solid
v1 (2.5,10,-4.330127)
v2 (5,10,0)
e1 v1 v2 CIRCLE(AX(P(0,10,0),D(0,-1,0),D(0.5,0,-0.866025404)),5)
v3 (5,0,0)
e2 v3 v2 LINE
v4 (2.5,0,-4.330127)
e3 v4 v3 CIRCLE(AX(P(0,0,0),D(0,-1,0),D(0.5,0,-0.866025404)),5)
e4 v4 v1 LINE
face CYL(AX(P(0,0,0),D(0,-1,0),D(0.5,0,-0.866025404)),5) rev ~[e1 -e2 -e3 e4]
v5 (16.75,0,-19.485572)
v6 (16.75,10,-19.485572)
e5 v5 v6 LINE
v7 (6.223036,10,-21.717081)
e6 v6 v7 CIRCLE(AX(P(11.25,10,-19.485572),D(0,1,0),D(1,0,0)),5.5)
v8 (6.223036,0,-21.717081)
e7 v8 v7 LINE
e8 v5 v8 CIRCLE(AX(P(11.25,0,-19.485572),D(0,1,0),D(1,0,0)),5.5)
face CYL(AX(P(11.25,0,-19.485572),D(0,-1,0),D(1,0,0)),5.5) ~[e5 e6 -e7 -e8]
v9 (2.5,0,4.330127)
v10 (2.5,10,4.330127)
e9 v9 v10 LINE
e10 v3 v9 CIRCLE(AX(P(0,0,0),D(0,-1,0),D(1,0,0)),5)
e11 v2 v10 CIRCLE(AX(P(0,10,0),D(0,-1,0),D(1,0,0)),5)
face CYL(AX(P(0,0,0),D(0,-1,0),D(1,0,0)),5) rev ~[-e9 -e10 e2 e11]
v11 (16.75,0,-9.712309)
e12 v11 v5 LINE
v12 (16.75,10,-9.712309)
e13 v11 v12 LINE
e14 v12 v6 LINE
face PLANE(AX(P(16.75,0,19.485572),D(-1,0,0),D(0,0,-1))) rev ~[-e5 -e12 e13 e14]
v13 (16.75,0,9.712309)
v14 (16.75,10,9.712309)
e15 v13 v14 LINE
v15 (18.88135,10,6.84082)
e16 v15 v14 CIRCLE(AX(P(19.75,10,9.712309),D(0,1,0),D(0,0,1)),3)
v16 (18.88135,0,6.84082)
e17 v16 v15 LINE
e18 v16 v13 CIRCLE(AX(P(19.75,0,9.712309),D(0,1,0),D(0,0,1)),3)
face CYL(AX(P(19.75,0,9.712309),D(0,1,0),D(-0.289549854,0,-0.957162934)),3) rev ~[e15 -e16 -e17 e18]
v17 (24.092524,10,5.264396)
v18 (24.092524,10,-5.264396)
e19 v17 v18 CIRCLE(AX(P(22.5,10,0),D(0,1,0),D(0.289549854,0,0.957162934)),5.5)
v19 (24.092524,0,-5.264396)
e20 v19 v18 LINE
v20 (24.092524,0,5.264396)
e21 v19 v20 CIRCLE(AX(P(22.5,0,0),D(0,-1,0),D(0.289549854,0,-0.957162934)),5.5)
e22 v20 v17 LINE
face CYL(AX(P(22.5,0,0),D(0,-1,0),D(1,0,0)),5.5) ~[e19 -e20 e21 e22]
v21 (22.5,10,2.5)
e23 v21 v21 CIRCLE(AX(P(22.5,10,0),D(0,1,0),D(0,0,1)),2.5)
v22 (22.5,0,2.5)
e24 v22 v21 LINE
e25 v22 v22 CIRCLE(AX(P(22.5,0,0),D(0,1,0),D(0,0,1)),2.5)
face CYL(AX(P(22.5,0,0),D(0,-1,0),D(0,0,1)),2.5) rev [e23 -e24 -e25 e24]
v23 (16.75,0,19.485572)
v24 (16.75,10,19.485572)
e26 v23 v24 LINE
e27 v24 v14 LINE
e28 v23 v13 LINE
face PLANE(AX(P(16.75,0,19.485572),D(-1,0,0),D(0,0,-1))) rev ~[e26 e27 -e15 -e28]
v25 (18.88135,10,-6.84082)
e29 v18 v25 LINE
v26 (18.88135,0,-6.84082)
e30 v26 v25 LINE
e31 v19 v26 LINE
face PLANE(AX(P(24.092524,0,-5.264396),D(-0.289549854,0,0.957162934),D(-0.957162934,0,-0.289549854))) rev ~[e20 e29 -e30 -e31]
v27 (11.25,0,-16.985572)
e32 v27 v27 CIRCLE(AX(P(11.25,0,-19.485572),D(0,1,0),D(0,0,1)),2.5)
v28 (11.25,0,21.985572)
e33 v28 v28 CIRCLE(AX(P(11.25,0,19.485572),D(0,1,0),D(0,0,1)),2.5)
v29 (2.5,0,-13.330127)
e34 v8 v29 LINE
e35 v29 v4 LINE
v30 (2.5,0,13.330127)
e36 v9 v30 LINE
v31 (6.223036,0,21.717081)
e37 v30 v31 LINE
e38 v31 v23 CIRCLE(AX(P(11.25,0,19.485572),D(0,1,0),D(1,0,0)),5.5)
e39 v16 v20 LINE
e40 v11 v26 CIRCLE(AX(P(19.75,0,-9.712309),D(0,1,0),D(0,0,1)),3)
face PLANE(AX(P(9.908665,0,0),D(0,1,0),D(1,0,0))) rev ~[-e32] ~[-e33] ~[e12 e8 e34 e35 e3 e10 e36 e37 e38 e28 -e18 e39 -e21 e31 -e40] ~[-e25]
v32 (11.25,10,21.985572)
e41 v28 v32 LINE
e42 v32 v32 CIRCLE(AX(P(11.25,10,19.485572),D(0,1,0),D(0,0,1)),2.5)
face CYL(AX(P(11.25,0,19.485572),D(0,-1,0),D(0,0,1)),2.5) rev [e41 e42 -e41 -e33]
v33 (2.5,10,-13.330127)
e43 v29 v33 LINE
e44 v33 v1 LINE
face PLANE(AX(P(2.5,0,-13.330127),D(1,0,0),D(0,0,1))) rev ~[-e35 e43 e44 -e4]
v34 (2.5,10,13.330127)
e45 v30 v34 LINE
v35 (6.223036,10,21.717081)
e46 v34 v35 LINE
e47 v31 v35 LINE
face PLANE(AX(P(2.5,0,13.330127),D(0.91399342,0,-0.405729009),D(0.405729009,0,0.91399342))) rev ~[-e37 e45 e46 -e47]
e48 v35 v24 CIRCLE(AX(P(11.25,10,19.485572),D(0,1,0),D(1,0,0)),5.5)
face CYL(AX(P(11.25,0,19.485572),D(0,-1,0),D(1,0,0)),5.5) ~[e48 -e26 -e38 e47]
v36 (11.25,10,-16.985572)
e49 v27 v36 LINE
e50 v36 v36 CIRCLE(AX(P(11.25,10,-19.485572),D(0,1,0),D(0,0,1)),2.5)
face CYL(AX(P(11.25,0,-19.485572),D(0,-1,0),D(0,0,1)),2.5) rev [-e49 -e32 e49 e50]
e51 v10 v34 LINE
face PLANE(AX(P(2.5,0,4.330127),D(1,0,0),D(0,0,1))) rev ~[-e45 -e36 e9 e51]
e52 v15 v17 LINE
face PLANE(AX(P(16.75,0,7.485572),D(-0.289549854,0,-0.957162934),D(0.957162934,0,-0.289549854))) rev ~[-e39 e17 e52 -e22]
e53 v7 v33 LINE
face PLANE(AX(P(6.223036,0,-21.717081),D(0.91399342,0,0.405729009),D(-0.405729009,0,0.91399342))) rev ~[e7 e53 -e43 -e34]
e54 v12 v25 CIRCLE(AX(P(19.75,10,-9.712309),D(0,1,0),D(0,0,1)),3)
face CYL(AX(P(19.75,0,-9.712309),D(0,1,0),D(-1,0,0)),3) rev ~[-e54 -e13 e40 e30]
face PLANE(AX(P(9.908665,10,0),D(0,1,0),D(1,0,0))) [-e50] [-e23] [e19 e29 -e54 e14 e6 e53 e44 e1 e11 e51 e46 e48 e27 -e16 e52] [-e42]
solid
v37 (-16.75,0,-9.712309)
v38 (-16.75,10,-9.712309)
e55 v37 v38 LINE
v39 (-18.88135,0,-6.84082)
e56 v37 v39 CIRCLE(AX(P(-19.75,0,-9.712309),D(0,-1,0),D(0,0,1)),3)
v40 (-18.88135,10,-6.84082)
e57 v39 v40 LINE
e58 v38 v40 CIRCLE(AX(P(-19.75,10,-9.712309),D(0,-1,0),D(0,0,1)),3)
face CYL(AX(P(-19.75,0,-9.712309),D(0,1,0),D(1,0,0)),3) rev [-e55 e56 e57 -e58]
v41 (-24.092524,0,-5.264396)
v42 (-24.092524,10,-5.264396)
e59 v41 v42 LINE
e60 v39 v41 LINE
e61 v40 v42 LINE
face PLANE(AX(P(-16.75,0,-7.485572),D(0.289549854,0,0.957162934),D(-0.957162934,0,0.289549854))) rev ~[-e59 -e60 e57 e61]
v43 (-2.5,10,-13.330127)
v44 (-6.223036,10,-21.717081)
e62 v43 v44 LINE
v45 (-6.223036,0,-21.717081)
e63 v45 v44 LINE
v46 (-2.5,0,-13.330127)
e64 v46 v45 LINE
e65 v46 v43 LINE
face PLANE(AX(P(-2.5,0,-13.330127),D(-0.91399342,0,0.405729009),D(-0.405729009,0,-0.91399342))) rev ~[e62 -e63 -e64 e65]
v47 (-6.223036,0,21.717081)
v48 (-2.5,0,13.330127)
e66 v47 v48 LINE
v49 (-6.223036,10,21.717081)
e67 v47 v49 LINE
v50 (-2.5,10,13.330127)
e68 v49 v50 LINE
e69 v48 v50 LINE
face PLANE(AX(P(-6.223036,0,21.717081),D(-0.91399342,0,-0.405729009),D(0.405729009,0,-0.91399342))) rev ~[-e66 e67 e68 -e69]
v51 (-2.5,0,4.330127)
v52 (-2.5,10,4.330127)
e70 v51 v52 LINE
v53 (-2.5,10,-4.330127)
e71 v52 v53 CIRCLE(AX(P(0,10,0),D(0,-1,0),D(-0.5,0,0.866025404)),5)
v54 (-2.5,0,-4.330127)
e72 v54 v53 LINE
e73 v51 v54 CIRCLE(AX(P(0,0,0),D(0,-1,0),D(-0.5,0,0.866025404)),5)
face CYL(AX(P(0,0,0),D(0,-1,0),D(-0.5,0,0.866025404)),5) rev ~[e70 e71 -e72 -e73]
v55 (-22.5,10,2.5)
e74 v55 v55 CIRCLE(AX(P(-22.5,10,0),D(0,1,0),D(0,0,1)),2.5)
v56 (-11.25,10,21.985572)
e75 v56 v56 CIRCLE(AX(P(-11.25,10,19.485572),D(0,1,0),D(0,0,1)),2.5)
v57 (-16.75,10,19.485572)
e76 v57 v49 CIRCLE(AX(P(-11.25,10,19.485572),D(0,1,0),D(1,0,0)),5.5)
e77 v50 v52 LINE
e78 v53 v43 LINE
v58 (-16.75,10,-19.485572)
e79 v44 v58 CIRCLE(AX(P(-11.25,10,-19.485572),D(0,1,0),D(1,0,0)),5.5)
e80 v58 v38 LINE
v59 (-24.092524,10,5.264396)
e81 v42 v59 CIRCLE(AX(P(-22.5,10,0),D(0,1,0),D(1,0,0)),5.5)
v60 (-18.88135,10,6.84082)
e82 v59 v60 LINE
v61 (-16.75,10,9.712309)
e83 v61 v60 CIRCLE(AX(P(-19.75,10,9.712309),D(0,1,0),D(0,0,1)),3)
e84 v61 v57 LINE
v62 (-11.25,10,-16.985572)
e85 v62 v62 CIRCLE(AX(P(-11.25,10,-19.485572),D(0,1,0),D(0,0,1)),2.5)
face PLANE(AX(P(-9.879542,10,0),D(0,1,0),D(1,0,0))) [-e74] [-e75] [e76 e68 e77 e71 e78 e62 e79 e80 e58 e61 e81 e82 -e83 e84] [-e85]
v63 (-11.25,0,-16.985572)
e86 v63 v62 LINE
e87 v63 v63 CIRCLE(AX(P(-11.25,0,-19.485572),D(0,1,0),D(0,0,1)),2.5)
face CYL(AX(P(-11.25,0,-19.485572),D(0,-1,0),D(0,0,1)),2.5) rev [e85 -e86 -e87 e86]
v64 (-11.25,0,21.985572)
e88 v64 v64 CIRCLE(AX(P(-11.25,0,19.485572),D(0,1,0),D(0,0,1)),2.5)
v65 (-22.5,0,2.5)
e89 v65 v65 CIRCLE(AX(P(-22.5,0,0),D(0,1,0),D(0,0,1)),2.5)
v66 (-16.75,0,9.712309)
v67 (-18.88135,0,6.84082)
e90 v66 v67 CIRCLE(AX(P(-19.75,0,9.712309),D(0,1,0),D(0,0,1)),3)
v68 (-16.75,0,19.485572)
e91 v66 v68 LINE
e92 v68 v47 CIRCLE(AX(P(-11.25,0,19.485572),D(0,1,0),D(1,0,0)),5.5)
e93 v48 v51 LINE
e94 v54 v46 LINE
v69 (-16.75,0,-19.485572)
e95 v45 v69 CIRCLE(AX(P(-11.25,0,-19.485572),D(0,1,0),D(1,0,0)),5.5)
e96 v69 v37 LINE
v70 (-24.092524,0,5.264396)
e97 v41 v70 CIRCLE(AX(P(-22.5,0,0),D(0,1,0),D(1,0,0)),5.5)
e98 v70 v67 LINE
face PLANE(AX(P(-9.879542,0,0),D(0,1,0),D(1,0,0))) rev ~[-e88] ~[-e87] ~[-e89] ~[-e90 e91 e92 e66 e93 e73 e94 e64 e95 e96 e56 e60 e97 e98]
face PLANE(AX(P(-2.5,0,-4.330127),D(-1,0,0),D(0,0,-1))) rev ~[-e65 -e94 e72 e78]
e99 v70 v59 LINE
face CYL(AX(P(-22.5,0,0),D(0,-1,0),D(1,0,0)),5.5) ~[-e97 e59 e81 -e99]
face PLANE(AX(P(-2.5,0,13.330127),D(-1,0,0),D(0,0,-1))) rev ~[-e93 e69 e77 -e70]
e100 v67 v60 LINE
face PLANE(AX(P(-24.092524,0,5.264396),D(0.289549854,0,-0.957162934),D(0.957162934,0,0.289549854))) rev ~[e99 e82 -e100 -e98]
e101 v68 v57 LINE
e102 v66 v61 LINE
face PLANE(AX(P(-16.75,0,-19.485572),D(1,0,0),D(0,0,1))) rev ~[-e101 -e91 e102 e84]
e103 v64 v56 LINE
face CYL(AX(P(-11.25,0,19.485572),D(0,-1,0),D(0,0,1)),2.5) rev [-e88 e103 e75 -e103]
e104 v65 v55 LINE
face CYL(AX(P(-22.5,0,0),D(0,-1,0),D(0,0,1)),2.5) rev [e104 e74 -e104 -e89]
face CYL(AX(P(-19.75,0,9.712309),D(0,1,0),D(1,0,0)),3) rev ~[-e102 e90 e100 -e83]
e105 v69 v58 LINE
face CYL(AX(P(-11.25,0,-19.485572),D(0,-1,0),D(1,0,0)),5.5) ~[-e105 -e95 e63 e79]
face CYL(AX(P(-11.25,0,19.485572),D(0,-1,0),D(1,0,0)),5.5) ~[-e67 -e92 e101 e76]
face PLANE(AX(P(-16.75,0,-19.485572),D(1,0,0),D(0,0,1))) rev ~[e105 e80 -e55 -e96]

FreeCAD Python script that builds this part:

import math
import FreeCAD as App
import Part
import Sketcher
Q = App.Units.Quantity


def edges_at(feature, points):
    """Names of the edges that pass closest to the given points."""
    edges = feature.Shape.Edges
    near = lambda p: min(range(len(edges)), key=lambda i: edges[i].distToShape(Part.Vertex(*p))[0])
    return sorted({f"Edge{near(p) + 1}" for p in points})

doc = App.newDocument("Part")
body = doc.addObject("PartDesign::Body", "Body")
body.AllowCompound = True

sketch1 = doc.addObject("Sketcher::SketchObject", "Sketch")
body.addObject(sketch1)
sketch1.AttachmentSupport = (doc.XZ_Plane, [""])
sketch1.MapMode = "FlatFace"
sketch1.addGeometry([
    Part.LineSegment(App.Vector(-16.8, -19.5, 0), App.Vector(-16.8, -7.5, 0)),
    Part.LineSegment(App.Vector(-16.8, -7.5, 0), App.Vector(-24.1, -5.3, 0)),
    Part.ArcOfCircle(Part.Circle(App.Vector(-22.5, 0, 0), App.Vector(0, 0, 1), 5.5), math.radians(107), math.radians(253)),
    Part.LineSegment(App.Vector(-24.1, 5.3, 0), App.Vector(-16.8, 7.5, 0)),
    Part.LineSegment(App.Vector(-16.8, 7.5, 0), App.Vector(-16.8, 19.5, 0)),
    Part.ArcOfCircle(Part.Circle(App.Vector(-11.2, 19.5, 0), App.Vector(0, 0, 1), 5.5), math.radians(24), math.radians(180)),
    Part.LineSegment(App.Vector(-6.2, 21.7, 0), App.Vector(-2.5, 13.3, 0)),
    Part.LineSegment(App.Vector(-2.5, 13.3, 0), App.Vector(-2.5, 4.3, 0)),
    Part.ArcOfCircle(Part.Circle(App.Vector(0, 0, 0), App.Vector(0, 0, 1), 5), math.radians(120), math.radians(240)),
    Part.LineSegment(App.Vector(-2.5, -4.3, 0), App.Vector(-2.5, -13.3, 0)),
    Part.LineSegment(App.Vector(-2.5, -13.3, 0), App.Vector(-6.2, -21.7, 0)),
    Part.ArcOfCircle(Part.Circle(App.Vector(-11.2, -19.5, 0), App.Vector(0, 0, 1), 5.5), math.radians(180), math.radians(336)),
    Part.Circle(App.Vector(-11.2, -19.5, 0), App.Vector(0, 0, 1), 2.5),
    Part.Circle(App.Vector(-11.2, 19.5, 0), App.Vector(0, 0, 1), 2.5),
    Part.Circle(App.Vector(-22.5, 0, 0), App.Vector(0, 0, 1), 2.5),
    Part.LineSegment(App.Vector(2.5, -13.3, 0), App.Vector(2.5, -4.3, 0)),
    Part.ArcOfCircle(Part.Circle(App.Vector(0, 0, 0), App.Vector(0, 0, 1), 5), math.radians(-60), math.radians(0)),
    Part.ArcOfCircle(Part.Circle(App.Vector(0, 0, 0), App.Vector(0, 0, 1), 5), math.radians(0), math.radians(60)),
    Part.LineSegment(App.Vector(2.5, 4.3, 0), App.Vector(2.5, 13.3, 0)),
    Part.LineSegment(App.Vector(2.5, 13.3, 0), App.Vector(6.2, 21.7, 0)),
    Part.ArcOfCircle(Part.Circle(App.Vector(11.2, 19.5, 0), App.Vector(0, 0, 1), 5.5), math.radians(0), math.radians(156)),
    Part.LineSegment(App.Vector(16.8, 19.5, 0), App.Vector(16.8, 7.5, 0)),
    Part.LineSegment(App.Vector(16.8, 7.5, 0), App.Vector(24.1, 5.3, 0)),
    Part.ArcOfCircle(Part.Circle(App.Vector(22.5, 0, 0), App.Vector(0, 0, 1), 5.5), math.radians(-73), math.radians(73)),
    Part.LineSegment(App.Vector(24.1, -5.3, 0), App.Vector(16.8, -7.5, 0)),
    Part.LineSegment(App.Vector(16.8, -7.5, 0), App.Vector(16.8, -19.5, 0)),
    Part.ArcOfCircle(Part.Circle(App.Vector(11.2, -19.5, 0), App.Vector(0, 0, 1), 5.5), math.radians(-156), math.radians(0)),
    Part.LineSegment(App.Vector(6.2, -21.7, 0), App.Vector(2.5, -13.3, 0)),
    Part.Circle(App.Vector(11.2, 19.5, 0), App.Vector(0, 0, 1), 2.5),
    Part.Circle(App.Vector(11.2, -19.5, 0), App.Vector(0, 0, 1), 2.5),
    Part.Circle(App.Vector(22.5, 0, 0), App.Vector(0, 0, 1), 2.5),
], False)
sketch1.addConstraint([
    Sketcher.Constraint("Coincident", 0, 2, 1, 1),
    Sketcher.Constraint("Tangent", 1, 2, 2, 2),
    Sketcher.Constraint("Tangent", 2, 1, 3, 1),
    Sketcher.Constraint("Coincident", 3, 2, 4, 1),
    Sketcher.Constraint("Tangent", 4, 2, 5, 2),
    Sketcher.Constraint("Tangent", 5, 1, 6, 1),
    Sketcher.Constraint("Coincident", 6, 2, 7, 1),
    Sketcher.Constraint("Coincident", 7, 2, 8, 1),
    Sketcher.Constraint("Coincident", 8, 2, 9, 1),
    Sketcher.Constraint("Coincident", 9, 2, 10, 1),
    Sketcher.Constraint("Tangent", 10, 2, 11, 2),
    Sketcher.Constraint("Tangent", 11, 1, 0, 1),
    Sketcher.Constraint("Coincident", 15, 2, 16, 1),
    Sketcher.Constraint("Tangent", 16, 2, 17, 1),
    Sketcher.Constraint("Coincident", 17, 2, 18, 1),
    Sketcher.Constraint("Coincident", 18, 2, 19, 1),
    Sketcher.Constraint("Tangent", 19, 2, 20, 2),
    Sketcher.Constraint("Tangent", 20, 1, 21, 1),
    Sketcher.Constraint("Coincident", 21, 2, 22, 1),
    Sketcher.Constraint("Tangent", 22, 2, 23, 2),
    Sketcher.Constraint("Tangent", 23, 1, 24, 1),
    Sketcher.Constraint("Coincident", 24, 2, 25, 1),
    Sketcher.Constraint("Tangent", 25, 2, 26, 2),
    Sketcher.Constraint("Tangent", 26, 1, 27, 1),
    Sketcher.Constraint("Coincident", 27, 2, 15, 1),
    Sketcher.Constraint("Vertical", 0),
    Sketcher.Constraint("Vertical", 4),
    Sketcher.Constraint("Vertical", 7),
    Sketcher.Constraint("Vertical", 9),
    Sketcher.Constraint("Vertical", 15),
    Sketcher.Constraint("Vertical", 18),
    Sketcher.Constraint("Vertical", 21),
    Sketcher.Constraint("Vertical", 25),
    Sketcher.Constraint("Coincident", 8, 3, -1, 1),
    Sketcher.Constraint("Coincident", 16, 3, -1, 1),
    Sketcher.Constraint("Coincident", 12, 3, 11, 3),
    Sketcher.Constraint("Coincident", 13, 3, 5, 3),
    Sketcher.Constraint("Coincident", 14, 3, 2, 3),
    Sketcher.Constraint("Coincident", 28, 3, 20, 3),
    Sketcher.Constraint("Coincident", 29, 3, 26, 3),
    Sketcher.Constraint("Coincident", 30, 3, 23, 3),
    Sketcher.Constraint("Equal", 2, 5),
    Sketcher.Constraint("Equal", 5, 11),
    Sketcher.Constraint("Equal", 12, 13),
    Sketcher.Constraint("Equal", 13, 14),
    Sketcher.Constraint("Equal", 8, 16),
    Sketcher.Constraint("Equal", 16, 17),
    Sketcher.Constraint("Equal", 11, 20),
    Sketcher.Constraint("Equal", 20, 23),
    Sketcher.Constraint("Equal", 23, 26),
    Sketcher.Constraint("Equal", 14, 28),
    Sketcher.Constraint("Equal", 28, 29),
    Sketcher.Constraint("Equal", 29, 30),
    Sketcher.Constraint("Symmetric", 11, 3, 20, 3, -1, 1),
    Sketcher.Constraint("Symmetric", 2, 3, 23, 3, -1, 1),
    Sketcher.Constraint("Symmetric", 5, 3, 26, 3, -1, 1),
    Sketcher.Constraint("Symmetric", 9, 2, 18, 2, -1, 1),
    Sketcher.Constraint("Symmetric", 6, 2, 27, 2, -1, 1),
    Sketcher.Constraint("Symmetric", 5, 3, 20, 3, -2),
    Sketcher.Constraint("Symmetric", 6, 2, 18, 2, -2),
    Sketcher.Constraint("Symmetric", 2, 1, 22, 2, -2),
    Sketcher.Constraint("PointOnObject", 16, 2, -1),
    Sketcher.Constraint("Parallel", 1, 22),
    Sketcher.Constraint("Parallel", 3, 24),
    Sketcher.Constraint("Diameter", 12, Q("5 mm")),
    Sketcher.Constraint("Radius", 8, Q("5 mm")),
    Sketcher.Constraint("Radius", 2, Q("5.5 mm")),
    Sketcher.Constraint("DistanceY", 0, 1, 0, 2, Q("12 mm")),
    Sketcher.Constraint("DistanceY", 7, 2, 7, 1, Q("9 mm")),
    Sketcher.Constraint("DistanceX", 8, 2, 15, 2, Q("5 mm")),
    Sketcher.Constraint("DistanceX", 2, 3, -1, 1, Q("22.5 mm")),
    Sketcher.Constraint("DistanceX", 5, 3, 20, 3, Q("22.5 mm")),
    Sketcher.Constraint("DistanceY", -1, 1, 5, 3, Q("19.485572 mm")),
])
pad1 = doc.addObject("PartDesign::Pad", "Pad")
body.addObject(pad1)
pad1.Profile = sketch1
pad1.Length = 10
pad1.Reversed = True
doc.recompute()

fillet = doc.addObject("PartDesign::Fillet", "Fillet")
body.addObject(fillet)
fillet.Base = (pad1, edges_at(pad1, [(-16.75, 5, 7.486), (-16.75, 5, -7.486)]))
fillet.Radius = 3
doc.recompute()

fillet2 = doc.addObject("PartDesign::Fillet", "Fillet001")
body.addObject(fillet2)
fillet2.Base = (fillet, edges_at(fillet, [(16.75, 5, 7.486), (16.75, 5, -7.486)]))
fillet2.Radius = 3

doc.recompute()
